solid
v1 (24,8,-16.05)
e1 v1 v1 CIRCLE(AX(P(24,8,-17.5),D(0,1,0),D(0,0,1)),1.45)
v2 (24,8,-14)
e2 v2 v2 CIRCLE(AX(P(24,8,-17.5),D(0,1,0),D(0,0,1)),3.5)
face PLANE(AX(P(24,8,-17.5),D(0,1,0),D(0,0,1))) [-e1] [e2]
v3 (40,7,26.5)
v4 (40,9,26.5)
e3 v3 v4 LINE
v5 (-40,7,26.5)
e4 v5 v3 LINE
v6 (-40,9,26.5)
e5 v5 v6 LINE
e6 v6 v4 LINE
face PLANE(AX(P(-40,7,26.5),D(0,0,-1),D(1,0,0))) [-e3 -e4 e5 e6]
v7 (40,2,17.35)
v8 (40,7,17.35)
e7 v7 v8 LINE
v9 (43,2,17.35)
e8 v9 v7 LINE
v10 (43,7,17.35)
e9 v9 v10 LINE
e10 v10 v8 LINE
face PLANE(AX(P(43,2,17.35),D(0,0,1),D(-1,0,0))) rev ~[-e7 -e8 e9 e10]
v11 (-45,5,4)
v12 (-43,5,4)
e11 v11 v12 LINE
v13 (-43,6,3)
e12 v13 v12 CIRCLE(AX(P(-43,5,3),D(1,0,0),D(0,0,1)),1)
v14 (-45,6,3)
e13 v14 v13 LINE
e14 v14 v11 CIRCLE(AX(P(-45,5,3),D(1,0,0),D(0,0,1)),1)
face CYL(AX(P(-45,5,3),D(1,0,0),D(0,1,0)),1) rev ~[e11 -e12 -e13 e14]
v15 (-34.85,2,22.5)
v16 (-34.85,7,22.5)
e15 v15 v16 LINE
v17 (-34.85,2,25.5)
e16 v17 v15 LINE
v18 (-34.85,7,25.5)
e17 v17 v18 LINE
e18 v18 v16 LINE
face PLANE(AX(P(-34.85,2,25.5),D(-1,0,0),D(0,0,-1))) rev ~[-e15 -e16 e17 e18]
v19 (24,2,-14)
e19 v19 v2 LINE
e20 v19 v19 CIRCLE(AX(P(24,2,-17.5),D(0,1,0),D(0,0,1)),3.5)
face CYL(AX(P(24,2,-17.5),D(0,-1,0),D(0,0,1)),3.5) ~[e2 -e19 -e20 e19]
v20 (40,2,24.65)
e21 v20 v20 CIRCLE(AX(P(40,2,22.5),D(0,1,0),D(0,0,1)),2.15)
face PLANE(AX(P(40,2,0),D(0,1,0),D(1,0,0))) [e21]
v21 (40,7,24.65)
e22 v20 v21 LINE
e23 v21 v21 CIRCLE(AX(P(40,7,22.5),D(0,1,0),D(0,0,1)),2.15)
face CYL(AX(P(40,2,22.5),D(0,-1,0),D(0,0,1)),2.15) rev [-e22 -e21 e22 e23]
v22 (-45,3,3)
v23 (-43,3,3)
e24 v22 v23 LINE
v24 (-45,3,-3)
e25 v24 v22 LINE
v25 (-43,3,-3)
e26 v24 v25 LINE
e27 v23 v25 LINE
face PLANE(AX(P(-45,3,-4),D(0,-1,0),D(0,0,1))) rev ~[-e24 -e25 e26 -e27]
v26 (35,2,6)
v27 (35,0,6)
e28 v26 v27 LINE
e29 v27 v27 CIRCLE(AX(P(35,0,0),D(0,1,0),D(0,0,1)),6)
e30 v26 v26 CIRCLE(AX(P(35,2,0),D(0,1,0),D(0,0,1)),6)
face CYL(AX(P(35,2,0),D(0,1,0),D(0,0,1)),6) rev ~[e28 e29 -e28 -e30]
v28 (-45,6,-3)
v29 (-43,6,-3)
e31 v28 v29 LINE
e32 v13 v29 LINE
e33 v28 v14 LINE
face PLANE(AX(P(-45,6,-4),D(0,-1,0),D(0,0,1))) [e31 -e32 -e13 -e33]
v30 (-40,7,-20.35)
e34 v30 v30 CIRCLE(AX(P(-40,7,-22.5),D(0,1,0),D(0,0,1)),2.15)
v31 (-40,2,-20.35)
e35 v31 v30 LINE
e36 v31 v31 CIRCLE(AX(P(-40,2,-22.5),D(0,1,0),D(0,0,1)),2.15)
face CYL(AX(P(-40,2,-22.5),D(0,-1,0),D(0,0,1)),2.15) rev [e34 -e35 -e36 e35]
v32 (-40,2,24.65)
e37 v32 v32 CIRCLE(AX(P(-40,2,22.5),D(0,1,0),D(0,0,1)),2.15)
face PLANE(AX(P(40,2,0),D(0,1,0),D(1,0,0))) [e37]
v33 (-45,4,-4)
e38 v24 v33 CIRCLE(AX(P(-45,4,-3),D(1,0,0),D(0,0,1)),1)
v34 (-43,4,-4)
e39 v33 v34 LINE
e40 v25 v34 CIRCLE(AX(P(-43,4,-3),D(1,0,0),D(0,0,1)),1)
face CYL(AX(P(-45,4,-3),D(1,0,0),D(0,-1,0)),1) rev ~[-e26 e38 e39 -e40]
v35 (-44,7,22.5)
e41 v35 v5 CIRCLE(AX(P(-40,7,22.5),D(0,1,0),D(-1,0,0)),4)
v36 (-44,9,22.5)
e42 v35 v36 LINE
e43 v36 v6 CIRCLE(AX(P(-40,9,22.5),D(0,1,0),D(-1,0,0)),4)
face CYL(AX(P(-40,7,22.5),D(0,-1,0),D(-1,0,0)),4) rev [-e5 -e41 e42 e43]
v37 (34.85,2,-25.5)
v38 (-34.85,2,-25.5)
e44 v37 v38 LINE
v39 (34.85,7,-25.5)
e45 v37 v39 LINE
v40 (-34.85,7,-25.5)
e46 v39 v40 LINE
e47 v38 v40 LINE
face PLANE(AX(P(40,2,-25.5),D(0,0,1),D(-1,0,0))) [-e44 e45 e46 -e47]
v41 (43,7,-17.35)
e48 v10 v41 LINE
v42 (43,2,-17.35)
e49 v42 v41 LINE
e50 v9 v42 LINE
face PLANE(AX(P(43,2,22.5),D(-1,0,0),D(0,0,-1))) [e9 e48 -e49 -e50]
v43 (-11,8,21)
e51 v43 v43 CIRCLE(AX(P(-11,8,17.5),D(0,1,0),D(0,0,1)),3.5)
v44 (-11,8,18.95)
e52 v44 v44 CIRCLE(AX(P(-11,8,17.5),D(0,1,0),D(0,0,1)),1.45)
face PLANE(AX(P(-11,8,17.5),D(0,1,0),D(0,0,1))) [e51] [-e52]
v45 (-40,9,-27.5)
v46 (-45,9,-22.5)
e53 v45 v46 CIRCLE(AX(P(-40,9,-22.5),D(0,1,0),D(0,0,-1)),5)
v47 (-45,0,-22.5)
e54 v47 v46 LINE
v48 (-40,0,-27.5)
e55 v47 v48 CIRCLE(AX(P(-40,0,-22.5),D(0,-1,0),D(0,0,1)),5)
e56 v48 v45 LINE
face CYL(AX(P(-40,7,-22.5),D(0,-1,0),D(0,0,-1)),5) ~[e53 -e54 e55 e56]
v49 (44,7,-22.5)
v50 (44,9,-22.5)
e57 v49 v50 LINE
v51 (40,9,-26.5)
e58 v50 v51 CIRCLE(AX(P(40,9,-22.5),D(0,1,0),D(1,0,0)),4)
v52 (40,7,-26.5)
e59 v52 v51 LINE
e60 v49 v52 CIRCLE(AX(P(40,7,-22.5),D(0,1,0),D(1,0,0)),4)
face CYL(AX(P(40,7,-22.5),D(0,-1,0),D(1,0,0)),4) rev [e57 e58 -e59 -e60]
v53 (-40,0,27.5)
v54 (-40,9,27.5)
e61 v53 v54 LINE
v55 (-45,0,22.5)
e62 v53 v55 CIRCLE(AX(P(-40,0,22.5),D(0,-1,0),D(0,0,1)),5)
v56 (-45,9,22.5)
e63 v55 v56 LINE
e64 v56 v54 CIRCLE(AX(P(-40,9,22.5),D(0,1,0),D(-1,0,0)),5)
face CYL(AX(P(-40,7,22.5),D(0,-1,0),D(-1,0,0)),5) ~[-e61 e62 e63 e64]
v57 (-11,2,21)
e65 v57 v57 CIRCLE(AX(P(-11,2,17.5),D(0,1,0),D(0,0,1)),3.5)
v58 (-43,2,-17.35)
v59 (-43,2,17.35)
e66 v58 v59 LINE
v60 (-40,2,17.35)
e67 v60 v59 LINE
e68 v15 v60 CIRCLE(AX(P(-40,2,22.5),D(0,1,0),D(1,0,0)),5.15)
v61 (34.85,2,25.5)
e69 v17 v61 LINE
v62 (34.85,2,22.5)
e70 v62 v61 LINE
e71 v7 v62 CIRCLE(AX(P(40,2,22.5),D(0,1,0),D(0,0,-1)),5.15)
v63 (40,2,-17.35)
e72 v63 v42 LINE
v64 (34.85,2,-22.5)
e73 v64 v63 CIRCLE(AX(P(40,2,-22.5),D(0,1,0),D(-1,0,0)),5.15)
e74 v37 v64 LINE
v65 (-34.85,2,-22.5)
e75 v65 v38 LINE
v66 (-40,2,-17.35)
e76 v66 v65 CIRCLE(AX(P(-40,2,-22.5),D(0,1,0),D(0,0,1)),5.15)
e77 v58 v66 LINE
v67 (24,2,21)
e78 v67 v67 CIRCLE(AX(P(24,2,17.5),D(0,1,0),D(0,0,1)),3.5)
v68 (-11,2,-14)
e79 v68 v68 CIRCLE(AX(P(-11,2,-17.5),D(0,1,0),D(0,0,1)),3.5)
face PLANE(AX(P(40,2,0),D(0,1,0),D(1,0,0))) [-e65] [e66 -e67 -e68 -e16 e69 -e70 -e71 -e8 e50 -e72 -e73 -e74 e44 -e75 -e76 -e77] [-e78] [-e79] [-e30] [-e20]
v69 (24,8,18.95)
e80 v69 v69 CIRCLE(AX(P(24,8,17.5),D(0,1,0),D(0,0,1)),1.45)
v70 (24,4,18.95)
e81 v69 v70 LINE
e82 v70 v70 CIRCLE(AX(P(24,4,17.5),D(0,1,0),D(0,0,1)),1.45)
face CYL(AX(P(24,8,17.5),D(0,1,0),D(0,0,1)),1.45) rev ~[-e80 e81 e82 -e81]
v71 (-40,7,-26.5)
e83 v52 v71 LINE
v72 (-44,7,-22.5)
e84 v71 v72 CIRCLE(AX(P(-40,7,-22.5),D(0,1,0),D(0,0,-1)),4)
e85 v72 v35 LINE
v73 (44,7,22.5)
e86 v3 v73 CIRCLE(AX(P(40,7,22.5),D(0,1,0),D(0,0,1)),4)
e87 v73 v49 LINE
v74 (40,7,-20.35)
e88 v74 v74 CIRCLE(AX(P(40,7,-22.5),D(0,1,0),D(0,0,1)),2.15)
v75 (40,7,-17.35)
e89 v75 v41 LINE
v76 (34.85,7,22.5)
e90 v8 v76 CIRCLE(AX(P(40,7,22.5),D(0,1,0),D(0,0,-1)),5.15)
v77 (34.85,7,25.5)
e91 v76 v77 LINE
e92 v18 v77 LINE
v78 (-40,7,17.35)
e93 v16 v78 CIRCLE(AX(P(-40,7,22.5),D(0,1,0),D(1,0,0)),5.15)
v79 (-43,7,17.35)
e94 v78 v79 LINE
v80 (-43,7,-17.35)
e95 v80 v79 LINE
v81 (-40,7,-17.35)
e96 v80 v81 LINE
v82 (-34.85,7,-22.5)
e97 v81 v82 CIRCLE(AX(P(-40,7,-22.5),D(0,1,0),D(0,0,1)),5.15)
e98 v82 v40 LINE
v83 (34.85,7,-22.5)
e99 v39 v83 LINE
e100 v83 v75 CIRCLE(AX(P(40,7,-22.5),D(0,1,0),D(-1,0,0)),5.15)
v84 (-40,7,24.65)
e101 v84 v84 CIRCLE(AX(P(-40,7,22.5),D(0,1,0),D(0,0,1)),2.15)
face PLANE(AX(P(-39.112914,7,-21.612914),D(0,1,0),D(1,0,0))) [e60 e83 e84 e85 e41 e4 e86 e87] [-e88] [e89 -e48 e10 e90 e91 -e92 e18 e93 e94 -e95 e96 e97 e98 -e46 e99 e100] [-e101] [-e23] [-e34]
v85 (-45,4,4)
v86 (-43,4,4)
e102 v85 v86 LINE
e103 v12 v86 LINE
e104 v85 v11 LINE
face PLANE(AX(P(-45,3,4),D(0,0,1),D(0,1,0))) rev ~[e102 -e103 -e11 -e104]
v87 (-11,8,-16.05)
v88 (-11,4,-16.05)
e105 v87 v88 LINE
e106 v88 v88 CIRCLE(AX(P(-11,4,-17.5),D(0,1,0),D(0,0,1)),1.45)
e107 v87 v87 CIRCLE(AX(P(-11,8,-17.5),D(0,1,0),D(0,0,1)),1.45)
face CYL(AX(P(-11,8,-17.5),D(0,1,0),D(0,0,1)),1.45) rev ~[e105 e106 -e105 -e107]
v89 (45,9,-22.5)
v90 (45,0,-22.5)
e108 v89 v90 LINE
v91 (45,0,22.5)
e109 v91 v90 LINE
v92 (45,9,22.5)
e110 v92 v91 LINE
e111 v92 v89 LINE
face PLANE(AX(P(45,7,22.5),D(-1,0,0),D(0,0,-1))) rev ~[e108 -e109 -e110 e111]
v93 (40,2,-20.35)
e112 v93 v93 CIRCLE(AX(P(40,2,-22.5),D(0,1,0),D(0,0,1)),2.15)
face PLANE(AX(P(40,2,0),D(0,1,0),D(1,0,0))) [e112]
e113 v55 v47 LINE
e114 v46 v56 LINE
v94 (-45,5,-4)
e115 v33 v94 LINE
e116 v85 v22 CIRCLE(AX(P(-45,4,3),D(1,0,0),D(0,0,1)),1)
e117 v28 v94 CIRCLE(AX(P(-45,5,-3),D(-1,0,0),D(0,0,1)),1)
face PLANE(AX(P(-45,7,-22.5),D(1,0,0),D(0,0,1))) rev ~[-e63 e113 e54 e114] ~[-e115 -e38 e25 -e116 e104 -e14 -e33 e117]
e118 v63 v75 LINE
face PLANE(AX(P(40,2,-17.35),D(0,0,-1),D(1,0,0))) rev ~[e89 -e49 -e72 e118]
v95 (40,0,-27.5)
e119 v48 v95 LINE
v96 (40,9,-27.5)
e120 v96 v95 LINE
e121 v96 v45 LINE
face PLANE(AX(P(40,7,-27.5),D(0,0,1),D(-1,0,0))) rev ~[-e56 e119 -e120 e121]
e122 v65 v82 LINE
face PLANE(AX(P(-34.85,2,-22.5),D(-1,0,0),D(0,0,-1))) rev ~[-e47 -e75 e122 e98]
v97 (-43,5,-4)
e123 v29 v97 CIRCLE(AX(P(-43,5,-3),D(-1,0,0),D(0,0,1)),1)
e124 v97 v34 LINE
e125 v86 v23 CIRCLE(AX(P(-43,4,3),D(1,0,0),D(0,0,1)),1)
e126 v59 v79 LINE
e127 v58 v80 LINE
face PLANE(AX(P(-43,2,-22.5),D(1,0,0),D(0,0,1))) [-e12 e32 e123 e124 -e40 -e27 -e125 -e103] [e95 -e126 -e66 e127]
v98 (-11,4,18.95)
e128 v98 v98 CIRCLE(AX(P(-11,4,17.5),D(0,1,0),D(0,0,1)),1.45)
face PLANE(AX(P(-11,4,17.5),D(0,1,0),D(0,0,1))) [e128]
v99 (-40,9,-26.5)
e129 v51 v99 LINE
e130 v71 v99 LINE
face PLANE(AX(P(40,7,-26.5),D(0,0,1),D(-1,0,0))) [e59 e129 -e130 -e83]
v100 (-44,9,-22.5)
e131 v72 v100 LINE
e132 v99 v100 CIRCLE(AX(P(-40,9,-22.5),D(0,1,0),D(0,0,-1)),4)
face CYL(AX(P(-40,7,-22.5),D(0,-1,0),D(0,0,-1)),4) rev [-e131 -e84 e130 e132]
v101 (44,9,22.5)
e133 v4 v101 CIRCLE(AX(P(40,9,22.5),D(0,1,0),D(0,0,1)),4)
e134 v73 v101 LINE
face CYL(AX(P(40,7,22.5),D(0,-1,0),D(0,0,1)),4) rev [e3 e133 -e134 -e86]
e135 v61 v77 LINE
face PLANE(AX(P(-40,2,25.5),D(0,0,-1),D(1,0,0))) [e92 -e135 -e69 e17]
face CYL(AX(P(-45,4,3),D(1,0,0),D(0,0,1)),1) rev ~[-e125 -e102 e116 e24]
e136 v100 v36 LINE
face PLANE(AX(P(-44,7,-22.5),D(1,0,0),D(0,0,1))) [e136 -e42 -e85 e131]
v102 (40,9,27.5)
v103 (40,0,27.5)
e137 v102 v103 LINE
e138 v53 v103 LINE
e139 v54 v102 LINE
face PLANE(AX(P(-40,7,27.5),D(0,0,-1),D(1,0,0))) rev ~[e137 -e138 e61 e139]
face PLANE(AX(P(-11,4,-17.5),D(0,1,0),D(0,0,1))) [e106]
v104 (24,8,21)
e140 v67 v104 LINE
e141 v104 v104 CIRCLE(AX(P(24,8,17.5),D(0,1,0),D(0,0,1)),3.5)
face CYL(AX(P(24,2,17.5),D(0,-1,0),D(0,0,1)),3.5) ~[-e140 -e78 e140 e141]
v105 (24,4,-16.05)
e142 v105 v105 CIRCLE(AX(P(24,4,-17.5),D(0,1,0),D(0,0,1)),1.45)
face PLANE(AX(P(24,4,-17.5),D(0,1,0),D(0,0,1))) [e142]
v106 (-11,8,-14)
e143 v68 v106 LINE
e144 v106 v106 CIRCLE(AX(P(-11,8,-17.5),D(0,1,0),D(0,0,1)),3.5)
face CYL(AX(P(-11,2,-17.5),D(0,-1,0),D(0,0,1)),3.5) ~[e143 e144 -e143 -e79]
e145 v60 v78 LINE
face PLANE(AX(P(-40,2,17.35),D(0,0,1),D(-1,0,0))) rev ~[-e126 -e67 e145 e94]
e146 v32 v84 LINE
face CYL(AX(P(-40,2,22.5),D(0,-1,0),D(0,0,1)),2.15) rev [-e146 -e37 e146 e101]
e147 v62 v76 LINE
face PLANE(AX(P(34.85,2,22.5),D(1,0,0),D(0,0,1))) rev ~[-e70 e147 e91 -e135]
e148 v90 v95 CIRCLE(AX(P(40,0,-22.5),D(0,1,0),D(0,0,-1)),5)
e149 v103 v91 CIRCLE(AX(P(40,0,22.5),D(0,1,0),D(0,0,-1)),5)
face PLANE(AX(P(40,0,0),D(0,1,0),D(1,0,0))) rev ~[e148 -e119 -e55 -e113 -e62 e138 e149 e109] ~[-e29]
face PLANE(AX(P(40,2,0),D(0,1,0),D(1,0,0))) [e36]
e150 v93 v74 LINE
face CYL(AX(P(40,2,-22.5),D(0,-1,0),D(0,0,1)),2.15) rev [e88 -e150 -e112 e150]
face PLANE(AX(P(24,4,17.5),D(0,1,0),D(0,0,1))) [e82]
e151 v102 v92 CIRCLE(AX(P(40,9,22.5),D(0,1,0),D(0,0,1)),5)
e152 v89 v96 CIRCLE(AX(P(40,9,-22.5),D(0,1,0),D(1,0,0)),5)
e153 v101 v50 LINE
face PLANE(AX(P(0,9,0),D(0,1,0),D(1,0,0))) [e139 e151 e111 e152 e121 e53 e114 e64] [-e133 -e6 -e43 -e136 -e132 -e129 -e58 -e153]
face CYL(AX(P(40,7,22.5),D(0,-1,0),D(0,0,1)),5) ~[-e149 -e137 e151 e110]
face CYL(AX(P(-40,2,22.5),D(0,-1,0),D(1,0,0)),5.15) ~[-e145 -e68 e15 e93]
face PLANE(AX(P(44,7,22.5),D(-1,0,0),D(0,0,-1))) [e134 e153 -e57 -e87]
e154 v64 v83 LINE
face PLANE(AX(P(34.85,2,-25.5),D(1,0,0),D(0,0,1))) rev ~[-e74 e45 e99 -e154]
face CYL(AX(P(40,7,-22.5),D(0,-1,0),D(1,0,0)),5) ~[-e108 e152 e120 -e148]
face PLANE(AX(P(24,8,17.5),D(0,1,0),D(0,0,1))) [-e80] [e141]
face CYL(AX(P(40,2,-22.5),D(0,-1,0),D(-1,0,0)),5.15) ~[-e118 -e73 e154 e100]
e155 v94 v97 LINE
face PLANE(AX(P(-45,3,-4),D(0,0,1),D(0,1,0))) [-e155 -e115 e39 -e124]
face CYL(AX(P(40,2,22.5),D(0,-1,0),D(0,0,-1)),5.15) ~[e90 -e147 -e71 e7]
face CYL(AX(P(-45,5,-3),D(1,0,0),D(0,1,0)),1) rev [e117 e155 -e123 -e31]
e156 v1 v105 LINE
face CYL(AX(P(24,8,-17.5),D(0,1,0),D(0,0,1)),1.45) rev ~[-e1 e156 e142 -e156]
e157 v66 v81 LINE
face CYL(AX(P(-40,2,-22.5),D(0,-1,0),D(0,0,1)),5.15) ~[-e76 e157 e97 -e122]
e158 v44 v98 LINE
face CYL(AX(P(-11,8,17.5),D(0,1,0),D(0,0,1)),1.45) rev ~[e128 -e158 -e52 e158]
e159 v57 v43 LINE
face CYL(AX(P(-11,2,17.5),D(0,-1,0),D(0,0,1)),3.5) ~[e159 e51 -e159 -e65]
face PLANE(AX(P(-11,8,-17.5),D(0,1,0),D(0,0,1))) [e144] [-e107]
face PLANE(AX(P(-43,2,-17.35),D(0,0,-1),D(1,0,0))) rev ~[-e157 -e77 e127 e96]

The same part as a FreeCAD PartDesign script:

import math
import FreeCAD as App
import Part
import Sketcher


def edges_at(feature, points):
    """Names of the edges that pass closest to the given points."""
    edges = feature.Shape.Edges
    near = lambda p: min(range(len(edges)), key=lambda i: edges[i].distToShape(Part.Vertex(*p))[0])
    return sorted({f"Edge{near(p) + 1}" for p in points})

doc = App.newDocument("Part")
body = doc.addObject("PartDesign::Body", "Body")

sketch1 = body.newObject("Sketcher::SketchObject", "Sketch")
sketch1.AttachmentSupport = (doc.getObject("XZ_Plane"), [""])
sketch1.MapMode = "FlatFace"
sketch1.addGeometry(Part.LineSegment(App.Vector(35, 28, 0), App.Vector(35, -28, 0)), False)
sketch1.addGeometry(Part.LineSegment(App.Vector(35, -28, 0), App.Vector(-45, -28, 0)), False)
sketch1.addGeometry(Part.LineSegment(App.Vector(-45, -28, 0), App.Vector(-45, 28, 0)), False)
sketch1.addGeometry(Part.LineSegment(App.Vector(-45, 28, 0), App.Vector(35, 28, 0)), False)
sketch1.addConstraint(Sketcher.Constraint("Coincident", 0, 2, 1, 1))
sketch1.addConstraint(Sketcher.Constraint("Coincident", 1, 2, 2, 1))
sketch1.addConstraint(Sketcher.Constraint("Coincident", 2, 2, 3, 1))
sketch1.addConstraint(Sketcher.Constraint("Coincident", 3, 2, 0, 1))
sketch1.addConstraint(Sketcher.Constraint("Vertical", 0))
sketch1.addConstraint(Sketcher.Constraint("Horizontal", 1))
sketch1.addConstraint(Sketcher.Constraint("Vertical", 2))
sketch1.addConstraint(Sketcher.Constraint("Horizontal", 3))
sketch1.addConstraint(Sketcher.Constraint("DistanceX", 1, 2, 1, 1, 80.0))
sketch1.addConstraint(Sketcher.Constraint("DistanceY", 0, 2, 0, 1, 55.0))
sketch1.addConstraint(Sketcher.Constraint("DistanceX", -1, 1, 0, 2, 35.0))
sketch1.addConstraint(Sketcher.Constraint("DistanceY", 0, 2, -1, 1, 27.5))
pad1 = body.newObject("PartDesign::Pad", "Pad")
pad1.Profile = sketch1
pad1.Length = 2
pad1.Reversed = True

sketch2 = body.newObject("Sketcher::SketchObject", "Sketch001")
sketch2.AttachmentSupport = (doc.getObject("XZ_Plane"), [""])
sketch2.MapMode = "FlatFace"
sketch2.AttachmentOffset = App.Placement(App.Vector(0, 0, -2), App.Rotation())
sketch2.addGeometry(Part.Circle(App.Vector(-11, -17.5, 0), App.Vector(0, 0, 1), 3.5), False)
sketch2.addGeometry(Part.Circle(App.Vector(24, -17.5, 0), App.Vector(0, 0, 1), 3.5), False)
sketch2.addGeometry(Part.Circle(App.Vector(24, 17.5, 0), App.Vector(0, 0, 1), 3.5), False)
sketch2.addGeometry(Part.Circle(App.Vector(-11, 17.5, 0), App.Vector(0, 0, 1), 3.5), False)
sketch2.addConstraint(Sketcher.Constraint("Equal", 0, 1))
sketch2.addConstraint(Sketcher.Constraint("Equal", 1, 2))
sketch2.addConstraint(Sketcher.Constraint("Equal", 2, 3))
sketch2.addConstraint(Sketcher.Constraint("Symmetric", 1, 3, 2, 3, -1))
sketch2.addConstraint(Sketcher.Constraint("Symmetric", 0, 3, 3, 3, -1))
sketch2.addConstraint(Sketcher.Constraint("Horizontal", 0, 3, 1, 3))
sketch2.addConstraint(Sketcher.Constraint("Diameter", 0, 7.0))
sketch2.addConstraint(Sketcher.Constraint("DistanceX", 0, 3, -1, 1, 11.0))
sketch2.addConstraint(Sketcher.Constraint("DistanceX", -1, 1, 1, 3, 24.0))
sketch2.addConstraint(Sketcher.Constraint("DistanceY", 1, 3, 2, 3, 35.0))
pad2 = body.newObject("PartDesign::Pad", "Pad001")
pad2.Profile = sketch2
pad2.Length = 6
pad2.Reversed = True

sketch3 = body.newObject("Sketcher::SketchObject", "Sketch002")
sketch3.AttachmentSupport = (doc.getObject("XZ_Plane"), [""])
sketch3.MapMode = "FlatFace"
sketch3.AttachmentOffset = App.Placement(App.Vector(0, 0, -8), App.Rotation())
sketch3.addGeometry(Part.Circle(App.Vector(-11, -17.5, 0), App.Vector(0, 0, 1), 1.4), False)
sketch3.addGeometry(Part.Circle(App.Vector(24, -17.5, 0), App.Vector(0, 0, 1), 1.4), False)
sketch3.addGeometry(Part.Circle(App.Vector(24, 17.5, 0), App.Vector(0, 0, 1), 1.4), False)
sketch3.addGeometry(Part.Circle(App.Vector(-11, 17.5, 0), App.Vector(0, 0, 1), 1.4), False)
sketch3.addConstraint(Sketcher.Constraint("Equal", 0, 1))
sketch3.addConstraint(Sketcher.Constraint("Equal", 1, 2))
sketch3.addConstraint(Sketcher.Constraint("Equal", 2, 3))
sketch3.addConstraint(Sketcher.Constraint("Symmetric", 1, 3, 2, 3, -1))
sketch3.addConstraint(Sketcher.Constraint("Symmetric", 0, 3, 3, 3, -1))
sketch3.addConstraint(Sketcher.Constraint("Horizontal", 0, 3, 1, 3))
sketch3.addConstraint(Sketcher.Constraint("Diameter", 0, 2.9))
sketch3.addConstraint(Sketcher.Constraint("DistanceX", 0, 3, -1, 1, 11.0))
sketch3.addConstraint(Sketcher.Constraint("DistanceX", -1, 1, 1, 3, 24.0))
sketch3.addConstraint(Sketcher.Constraint("DistanceY", 1, 3, 2, 3, 35.0))
pocket1 = body.newObject("PartDesign::Pocket", "Pocket")
pocket1.Profile = sketch3
pocket1.Length = 4
pocket1.Reversed = True

sketch4 = body.newObject("Sketcher::SketchObject", "Sketch003")
sketch4.AttachmentSupport = (doc.getObject("XZ_Plane"), [""])
sketch4.MapMode = "FlatFace"
sketch4.AttachmentOffset = App.Placement(App.Vector(0, 0, -2), App.Rotation())
sketch4.addGeometry(Part.LineSegment(App.Vector(35, -28, 0), App.Vector(35, 28, 0)), False)
sketch4.addGeometry(Part.LineSegment(App.Vector(35, 28, 0), App.Vector(45, 28, 0)), False)
sketch4.addGeometry(Part.LineSegment(App.Vector(45, 28, 0), App.Vector(45, -28, 0)), False)
sketch4.addGeometry(Part.LineSegment(App.Vector(45, -28, 0), App.Vector(35, -28, 0)), False)
sketch4.addConstraint(Sketcher.Constraint("Coincident", 0, 2, 1, 1))
sketch4.addConstraint(Sketcher.Constraint("Coincident", 1, 2, 2, 1))
sketch4.addConstraint(Sketcher.Constraint("Coincident", 2, 2, 3, 1))
sketch4.addConstraint(Sketcher.Constraint("Coincident", 3, 2, 0, 1))
sketch4.addConstraint(Sketcher.Constraint("Vertical", 0))
sketch4.addConstraint(Sketcher.Constraint("Horizontal", 1))
sketch4.addConstraint(Sketcher.Constraint("Vertical", 2))
sketch4.addConstraint(Sketcher.Constraint("Horizontal", 3))
sketch4.addConstraint(Sketcher.Constraint("DistanceX", 1, 1, 1, 2, 10.0))
sketch4.addConstraint(Sketcher.Constraint("DistanceY", 0, 1, 0, 2, 55.0))
sketch4.addConstraint(Sketcher.Constraint("DistanceX", -1, 1, 0, 2, 35.0))
sketch4.addConstraint(Sketcher.Constraint("DistanceY", -1, 1, 0, 2, 27.5))
pad3 = body.newObject("PartDesign::Pad", "Pad002")
pad3.Profile = sketch4
pad3.Length = 2

sketch5 = body.newObject("Sketcher::SketchObject", "Sketch004")
sketch5.AttachmentSupport = (doc.getObject("XZ_Plane"), [""])
sketch5.MapMode = "FlatFace"
sketch5.AttachmentOffset = App.Placement(App.Vector(0, 0, -2), App.Rotation())
sketch5.addGeometry(Part.Circle(App.Vector(35, 0, 0), App.Vector(0, 0, 1), 6), False)
sketch5.addConstraint(Sketcher.Constraint("PointOnObject", 0, 3, -1))
sketch5.addConstraint(Sketcher.Constraint("Diameter", 0, 12.0))
sketch5.addConstraint(Sketcher.Constraint("DistanceX", -1, 1, 0, 3, 35.0))
pocket2 = body.newObject("PartDesign::Pocket", "Pocket001")
pocket2.Profile = sketch5
pocket2.Length = 2
pocket2.Reversed = True
doc.recompute()

fillet = body.newObject("PartDesign::Fillet", "Fillet")
fillet.Base = (pocket2, edges_at(pocket2, [
    (45, 1, -27.5),
    (45, 1, 27.5),
    (-45, 1, 27.5),
    (-45, 1, -27.5),
]))
fillet.Radius = 5

sketch6 = body.newObject("Sketcher::SketchObject", "Sketch005")
sketch6.AttachmentSupport = (doc.getObject("XZ_Plane"), [""])
sketch6.MapMode = "FlatFace"
sketch6.AttachmentOffset = App.Placement(App.Vector(0, 0, -2), App.Rotation())
sketch6.addGeometry(Part.LineSegment(App.Vector(40, -27.5, 0), App.Vector(-40, -27.5, 0)), False)
sketch6.addGeometry(Part.ArcOfCircle(Part.Circle(App.Vector(-40, -22.5, 0), App.Vector(0, 0, 1), 5), math.radians(180), math.radians(270)), False)
sketch6.addGeometry(Part.LineSegment(App.Vector(-45, -22.5, 0), App.Vector(-45, 22.5, 0)), False)
sketch6.addGeometry(Part.ArcOfCircle(Part.Circle(App.Vector(-40, 22.5, 0), App.Vector(0, 0, 1), 5), math.radians(90), math.radians(180)), False)
sketch6.addGeometry(Part.LineSegment(App.Vector(-40, 27.5, 0), App.Vector(40, 27.5, 0)), False)
sketch6.addGeometry(Part.ArcOfCircle(Part.Circle(App.Vector(40, 22.5, 0), App.Vector(0, 0, 1), 5), math.radians(0), math.radians(90)), False)
sketch6.addGeometry(Part.LineSegment(App.Vector(45, 22.5, 0), App.Vector(45, -22.5, 0)), False)
sketch6.addGeometry(Part.ArcOfCircle(Part.Circle(App.Vector(40, -22.5, 0), App.Vector(0, 0, 1), 5), math.radians(-90), math.radians(0)), False)
sketch6.addGeometry(Part.LineSegment(App.Vector(43, -22.5, 0), App.Vector(43, 22.5, 0)), False)
sketch6.addGeometry(Part.ArcOfCircle(Part.Circle(App.Vector(40, 22.5, 0), App.Vector(0, 0, 1), 3), math.radians(0), math.radians(90)), False)
sketch6.addGeometry(Part.LineSegment(App.Vector(40, 25.5, 0), App.Vector(-40, 25.5, 0)), False)
sketch6.addGeometry(Part.ArcOfCircle(Part.Circle(App.Vector(-40, 22.5, 0), App.Vector(0, 0, 1), 3), math.radians(90), math.radians(180)), False)
sketch6.addGeometry(Part.LineSegment(App.Vector(-43, 22.5, 0), App.Vector(-43, -22.5, 0)), False)
sketch6.addGeometry(Part.ArcOfCircle(Part.Circle(App.Vector(-40, -22.5, 0), App.Vector(0, 0, 1), 3), math.radians(180), math.radians(270)), False)
sketch6.addGeometry(Part.LineSegment(App.Vector(-40, -25.5, 0), App.Vector(40, -25.5, 0)), False)
sketch6.addGeometry(Part.ArcOfCircle(Part.Circle(App.Vector(40, -22.5, 0), App.Vector(0, 0, 1), 3), math.radians(-90), math.radians(0)), False)
sketch6.addConstraint(Sketcher.Constraint("Tangent", 0, 2, 1, 2))
sketch6.addConstraint(Sketcher.Constraint("Tangent", 1, 1, 2, 1))
sketch6.addConstraint(Sketcher.Constraint("Tangent", 2, 2, 3, 2))
sketch6.addConstraint(Sketcher.Constraint("Tangent", 3, 1, 4, 1))
sketch6.addConstraint(Sketcher.Constraint("Tangent", 4, 2, 5, 2))
sketch6.addConstraint(Sketcher.Constraint("Tangent", 5, 1, 6, 1))
sketch6.addConstraint(Sketcher.Constraint("Tangent", 6, 2, 7, 2))
sketch6.addConstraint(Sketcher.Constraint("Tangent", 7, 1, 0, 1))
sketch6.addConstraint(Sketcher.Constraint("Tangent", 8, 2, 9, 1))
sketch6.addConstraint(Sketcher.Constraint("Tangent", 9, 2, 10, 1))
sketch6.addConstraint(Sketcher.Constraint("Tangent", 10, 2, 11, 1))
sketch6.addConstraint(Sketcher.Constraint("Tangent", 11, 2, 12, 1))
sketch6.addConstraint(Sketcher.Constraint("Tangent", 12, 2, 13, 1))
sketch6.addConstraint(Sketcher.Constraint("Tangent", 13, 2, 14, 1))
sketch6.addConstraint(Sketcher.Constraint("Tangent", 14, 2, 15, 1))
sketch6.addConstraint(Sketcher.Constraint("Tangent", 15, 2, 8, 1))
sketch6.addConstraint(Sketcher.Constraint("Horizontal", 0))
sketch6.addConstraint(Sketcher.Constraint("Vertical", 2))
sketch6.addConstraint(Sketcher.Constraint("Horizontal", 4))
sketch6.addConstraint(Sketcher.Constraint("Vertical", 6))
sketch6.addConstraint(Sketcher.Constraint("Vertical", 8))
sketch6.addConstraint(Sketcher.Constraint("Horizontal", 10))
sketch6.addConstraint(Sketcher.Constraint("Vertical", 12))
sketch6.addConstraint(Sketcher.Constraint("Horizontal", 14))
sketch6.addConstraint(Sketcher.Constraint("Coincident", 9, 3, 5, 3))
sketch6.addConstraint(Sketcher.Constraint("Coincident", 11, 3, 3, 3))
sketch6.addConstraint(Sketcher.Constraint("Coincident", 13, 3, 1, 3))
sketch6.addConstraint(Sketcher.Constraint("Equal", 1, 3))
sketch6.addConstraint(Sketcher.Constraint("Equal", 3, 5))
sketch6.addConstraint(Sketcher.Constraint("Equal", 5, 7))
sketch6.addConstraint(Sketcher.Constraint("Equal", 13, 15))
sketch6.addConstraint(Sketcher.Constraint("Symmetric", 1, 3, 5, 3, -1, 1))
sketch6.addConstraint(Sketcher.Constraint("Radius", 1, 5.0))
sketch6.addConstraint(Sketcher.Constraint("Radius", 9, 3.0))
sketch6.addConstraint(Sketcher.Constraint("DistanceX", 0, 2, 0, 1, 80.0))
sketch6.addConstraint(Sketcher.Constraint("DistanceY", 2, 1, 2, 2, 45.0))
pad4 = body.newObject("PartDesign::Pad", "Pad003")
pad4.Profile = sketch6
pad4.Length = 5
pad4.Reversed = True

sketch7 = body.newObject("Sketcher::SketchObject", "Sketch006")
sketch7.AttachmentSupport = (doc.getObject("XZ_Plane"), [""])
sketch7.MapMode = "FlatFace"
sketch7.AttachmentOffset = App.Placement(App.Vector(0, 0, -7), App.Rotation())
sketch7.addGeometry(Part.LineSegment(App.Vector(40, -27.5, 0), App.Vector(-40, -27.5, 0)), False)
sketch7.addGeometry(Part.ArcOfCircle(Part.Circle(App.Vector(-40, -22.5, 0), App.Vector(0, 0, 1), 5), math.radians(180), math.radians(270)), False)
sketch7.addGeometry(Part.LineSegment(App.Vector(-45, -22.5, 0), App.Vector(-45, 22.5, 0)), False)
sketch7.addGeometry(Part.ArcOfCircle(Part.Circle(App.Vector(-40, 22.5, 0), App.Vector(0, 0, 1), 5), math.radians(90), math.radians(180)), False)
sketch7.addGeometry(Part.LineSegment(App.Vector(-40, 27.5, 0), App.Vector(40, 27.5, 0)), False)
sketch7.addGeometry(Part.ArcOfCircle(Part.Circle(App.Vector(40, 22.5, 0), App.Vector(0, 0, 1), 5), math.radians(0), math.radians(90)), False)
sketch7.addGeometry(Part.LineSegment(App.Vector(45, 22.5, 0), App.Vector(45, -22.5, 0)), False)
sketch7.addGeometry(Part.ArcOfCircle(Part.Circle(App.Vector(40, -22.5, 0), App.Vector(0, 0, 1), 5), math.radians(-90), math.radians(0)), False)
sketch7.addGeometry(Part.LineSegment(App.Vector(-40, -26.5, 0), App.Vector(40, -26.5, 0)), False)
sketch7.addGeometry(Part.ArcOfCircle(Part.Circle(App.Vector(40, -22.5, 0), App.Vector(0, 0, 1), 4), math.radians(-90), math.radians(0)), False)
sketch7.addGeometry(Part.LineSegment(App.Vector(44, -22.5, 0), App.Vector(44, 22.5, 0)), False)
sketch7.addGeometry(Part.ArcOfCircle(Part.Circle(App.Vector(40, 22.5, 0), App.Vector(0, 0, 1), 4), math.radians(0), math.radians(90)), False)
sketch7.addGeometry(Part.LineSegment(App.Vector(40, 26.5, 0), App.Vector(-40, 26.5, 0)), False)
sketch7.addGeometry(Part.ArcOfCircle(Part.Circle(App.Vector(-40, 22.5, 0), App.Vector(0, 0, 1), 4), math.radians(90), math.radians(180)), False)
sketch7.addGeometry(Part.LineSegment(App.Vector(-44, 22.5, 0), App.Vector(-44, -22.5, 0)), False)
sketch7.addGeometry(Part.ArcOfCircle(Part.Circle(App.Vector(-40, -22.5, 0), App.Vector(0, 0, 1), 4), math.radians(180), math.radians(270)), False)
sketch7.addConstraint(Sketcher.Constraint("Tangent", 0, 2, 1, 2))
sketch7.addConstraint(Sketcher.Constraint("Tangent", 1, 1, 2, 1))
sketch7.addConstraint(Sketcher.Constraint("Tangent", 2, 2, 3, 2))
sketch7.addConstraint(Sketcher.Constraint("Tangent", 3, 1, 4, 1))
sketch7.addConstraint(Sketcher.Constraint("Tangent", 4, 2, 5, 2))
sketch7.addConstraint(Sketcher.Constraint("Tangent", 5, 1, 6, 1))
sketch7.addConstraint(Sketcher.Constraint("Tangent", 6, 2, 7, 2))
sketch7.addConstraint(Sketcher.Constraint("Tangent", 7, 1, 0, 1))
sketch7.addConstraint(Sketcher.Constraint("Tangent", 8, 2, 9, 1))
sketch7.addConstraint(Sketcher.Constraint("Tangent", 9, 2, 10, 1))
sketch7.addConstraint(Sketcher.Constraint("Tangent", 10, 2, 11, 1))
sketch7.addConstraint(Sketcher.Constraint("Tangent", 11, 2, 12, 1))
sketch7.addConstraint(Sketcher.Constraint("Tangent", 12, 2, 13, 1))
sketch7.addConstraint(Sketcher.Constraint("Tangent", 13, 2, 14, 1))
sketch7.addConstraint(Sketcher.Constraint("Tangent", 14, 2, 15, 1))
sketch7.addConstraint(Sketcher.Constraint("Tangent", 15, 2, 8, 1))
sketch7.addConstraint(Sketcher.Constraint("Horizontal", 0))
sketch7.addConstraint(Sketcher.Constraint("Vertical", 2))
sketch7.addConstraint(Sketcher.Constraint("Horizontal", 4))
sketch7.addConstraint(Sketcher.Constraint("Vertical", 6))
sketch7.addConstraint(Sketcher.Constraint("Horizontal", 8))
sketch7.addConstraint(Sketcher.Constraint("Vertical", 10))
sketch7.addConstraint(Sketcher.Constraint("Horizontal", 12))
sketch7.addConstraint(Sketcher.Constraint("Vertical", 14))
sketch7.addConstraint(Sketcher.Constraint("Coincident", 9, 3, 7, 3))
sketch7.addConstraint(Sketcher.Constraint("Coincident", 11, 3, 5, 3))
sketch7.addConstraint(Sketcher.Constraint("Coincident", 13, 3, 3, 3))
sketch7.addConstraint(Sketcher.Constraint("Equal", 1, 3))
sketch7.addConstraint(Sketcher.Constraint("Equal", 3, 5))
sketch7.addConstraint(Sketcher.Constraint("Equal", 5, 7))
sketch7.addConstraint(Sketcher.Constraint("Equal", 13, 15))
sketch7.addConstraint(Sketcher.Constraint("Symmetric", 1, 3, 5, 3, -1, 1))
sketch7.addConstraint(Sketcher.Constraint("Radius", 1, 5.0))
sketch7.addConstraint(Sketcher.Constraint("Radius", 9, 4.0))
sketch7.addConstraint(Sketcher.Constraint("DistanceX", 0, 2, 0, 1, 80.0))
sketch7.addConstraint(Sketcher.Constraint("DistanceY", 2, 1, 2, 2, 45.0))
pad5 = body.newObject("PartDesign::Pad", "Pad004")
pad5.Profile = sketch7
pad5.Length = 2
pad5.Reversed = True

sketch8 = body.newObject("Sketcher::SketchObject", "Sketch007")
sketch8.AttachmentSupport = (doc.getObject("XZ_Plane"), [""])
sketch8.MapMode = "FlatFace"
sketch8.AttachmentOffset = App.Placement(App.Vector(0, 0, -2), App.Rotation())
sketch8.addGeometry(Part.ArcOfCircle(Part.Circle(App.Vector(-40, -22.5, 0), App.Vector(0, 0, 1), 5.2), math.radians(0), math.radians(90)), False)
sketch8.addGeometry(Part.LineSegment(App.Vector(-34.9, -22.5, 0), App.Vector(-34.9, -25.5, 0)), False)
sketch8.addGeometry(Part.LineSegment(App.Vector(-34.9, -25.5, 0), App.Vector(-40, -25.5, 0)), False)
sketch8.addGeometry(Part.ArcOfCircle(Part.Circle(App.Vector(-40, -22.5, 0), App.Vector(0, 0, 1), 3), math.radians(180), math.radians(270)), False)
sketch8.addGeometry(Part.LineSegment(App.Vector(-43, -22.5, 0), App.Vector(-43, -17.4, 0)), False)
sketch8.addGeometry(Part.LineSegment(App.Vector(-43, -17.4, 0), App.Vector(-40, -17.4, 0)), False)
sketch8.addGeometry(Part.Circle(App.Vector(-40, -22.5, 0), App.Vector(0, 0, 1), 2.1), False)
sketch8.addGeometry(Part.LineSegment(App.Vector(40, -25.5, 0), App.Vector(34.9, -25.5, 0)), False)
sketch8.addGeometry(Part.LineSegment(App.Vector(34.9, -25.5, 0), App.Vector(34.9, -22.5, 0)), False)
sketch8.addGeometry(Part.ArcOfCircle(Part.Circle(App.Vector(40, -22.5, 0), App.Vector(0, 0, 1), 5.2), math.radians(90), math.radians(180)), False)
sketch8.addGeometry(Part.LineSegment(App.Vector(40, -17.4, 0), App.Vector(43, -17.4, 0)), False)
sketch8.addGeometry(Part.LineSegment(App.Vector(43, -17.4, 0), App.Vector(43, -22.5, 0)), False)
sketch8.addGeometry(Part.ArcOfCircle(Part.Circle(App.Vector(40, -22.5, 0), App.Vector(0, 0, 1), 3), math.radians(-90), math.radians(0)), False)
sketch8.addGeometry(Part.Circle(App.Vector(40, -22.5, 0), App.Vector(0, 0, 1), 2.1), False)
sketch8.addGeometry(Part.LineSegment(App.Vector(43, 22.5, 0), App.Vector(43, 17.4, 0)), False)
sketch8.addGeometry(Part.LineSegment(App.Vector(43, 17.4, 0), App.Vector(40, 17.4, 0)), False)
sketch8.addGeometry(Part.ArcOfCircle(Part.Circle(App.Vector(40, 22.5, 0), App.Vector(0, 0, 1), 5.2), math.radians(180), math.radians(270)), False)
sketch8.addGeometry(Part.LineSegment(App.Vector(34.9, 22.5, 0), App.Vector(34.9, 25.5, 0)), False)
sketch8.addGeometry(Part.LineSegment(App.Vector(34.9, 25.5, 0), App.Vector(40, 25.5, 0)), False)
sketch8.addGeometry(Part.ArcOfCircle(Part.Circle(App.Vector(40, 22.5, 0), App.Vector(0, 0, 1), 3), math.radians(0), math.radians(90)), False)
sketch8.addGeometry(Part.Circle(App.Vector(40, 22.5, 0), App.Vector(0, 0, 1), 2.1), False)
sketch8.addGeometry(Part.LineSegment(App.Vector(-40, 17.4, 0), App.Vector(-43, 17.4, 0)), False)
sketch8.addGeometry(Part.LineSegment(App.Vector(-43, 17.4, 0), App.Vector(-43, 22.5, 0)), False)
sketch8.addGeometry(Part.ArcOfCircle(Part.Circle(App.Vector(-40, 22.5, 0), App.Vector(0, 0, 1), 3), math.radians(90), math.radians(180)), False)
sketch8.addGeometry(Part.LineSegment(App.Vector(-40, 25.5, 0), App.Vector(-34.9, 25.5, 0)), False)
sketch8.addGeometry(Part.LineSegment(App.Vector(-34.9, 25.5, 0), App.Vector(-34.9, 22.5, 0)), False)
sketch8.addGeometry(Part.ArcOfCircle(Part.Circle(App.Vector(-40, 22.5, 0), App.Vector(0, 0, 1), 5.2), math.radians(-90), math.radians(0)), False)
sketch8.addGeometry(Part.Circle(App.Vector(-40, 22.5, 0), App.Vector(0, 0, 1), 2.1), False)
sketch8.addConstraint(Sketcher.Constraint("Tangent", 0, 1, 1, 1))
sketch8.addConstraint(Sketcher.Constraint("Coincident", 1, 2, 2, 1))
sketch8.addConstraint(Sketcher.Constraint("Tangent", 2, 2, 3, 2))
sketch8.addConstraint(Sketcher.Constraint("Tangent", 3, 1, 4, 1))
sketch8.addConstraint(Sketcher.Constraint("Coincident", 4, 2, 5, 1))
sketch8.addConstraint(Sketcher.Constraint("Tangent", 5, 2, 0, 2))
sketch8.addConstraint(Sketcher.Constraint("Coincident", 7, 2, 8, 1))
sketch8.addConstraint(Sketcher.Constraint("Tangent", 8, 2, 9, 2))
sketch8.addConstraint(Sketcher.Constraint("Tangent", 9, 1, 10, 1))
sketch8.addConstraint(Sketcher.Constraint("Coincident", 10, 2, 11, 1))
sketch8.addConstraint(Sketcher.Constraint("Tangent", 11, 2, 12, 2))
sketch8.addConstraint(Sketcher.Constraint("Tangent", 12, 1, 7, 1))
sketch8.addConstraint(Sketcher.Constraint("Coincident", 14, 2, 15, 1))
sketch8.addConstraint(Sketcher.Constraint("Tangent", 15, 2, 16, 2))
sketch8.addConstraint(Sketcher.Constraint("Tangent", 16, 1, 17, 1))
sketch8.addConstraint(Sketcher.Constraint("Coincident", 17, 2, 18, 1))
sketch8.addConstraint(Sketcher.Constraint("Tangent", 18, 2, 19, 2))
sketch8.addConstraint(Sketcher.Constraint("Tangent", 19, 1, 14, 1))
sketch8.addConstraint(Sketcher.Constraint("Coincident", 21, 2, 22, 1))
sketch8.addConstraint(Sketcher.Constraint("Tangent", 22, 2, 23, 2))
sketch8.addConstraint(Sketcher.Constraint("Tangent", 23, 1, 24, 1))
sketch8.addConstraint(Sketcher.Constraint("Coincident", 24, 2, 25, 1))
sketch8.addConstraint(Sketcher.Constraint("Tangent", 25, 2, 26, 2))
sketch8.addConstraint(Sketcher.Constraint("Tangent", 26, 1, 21, 1))
sketch8.addConstraint(Sketcher.Constraint("Vertical", 1))
sketch8.addConstraint(Sketcher.Constraint("Horizontal", 2))
sketch8.addConstraint(Sketcher.Constraint("Vertical", 4))
sketch8.addConstraint(Sketcher.Constraint("Horizontal", 5))
sketch8.addConstraint(Sketcher.Constraint("Horizontal", 7))
sketch8.addConstraint(Sketcher.Constraint("Vertical", 8))
sketch8.addConstraint(Sketcher.Constraint("Horizontal", 10))
sketch8.addConstraint(Sketcher.Constraint("Vertical", 11))
sketch8.addConstraint(Sketcher.Constraint("Vertical", 14))
sketch8.addConstraint(Sketcher.Constraint("Horizontal", 15))
sketch8.addConstraint(Sketcher.Constraint("Vertical", 17))
sketch8.addConstraint(Sketcher.Constraint("Horizontal", 18))
sketch8.addConstraint(Sketcher.Constraint("Horizontal", 21))
sketch8.addConstraint(Sketcher.Constraint("Vertical", 22))
sketch8.addConstraint(Sketcher.Constraint("Horizontal", 24))
sketch8.addConstraint(Sketcher.Constraint("Vertical", 25))
sketch8.addConstraint(Sketcher.Constraint("Coincident", 3, 3, 0, 3))
sketch8.addConstraint(Sketcher.Constraint("Coincident", 6, 3, 0, 3))
sketch8.addConstraint(Sketcher.Constraint("Coincident", 12, 3, 9, 3))
sketch8.addConstraint(Sketcher.Constraint("Coincident", 13, 3, 9, 3))
sketch8.addConstraint(Sketcher.Constraint("Coincident", 19, 3, 16, 3))
sketch8.addConstraint(Sketcher.Constraint("Coincident", 20, 3, 16, 3))
sketch8.addConstraint(Sketcher.Constraint("Coincident", 26, 3, 23, 3))
sketch8.addConstraint(Sketcher.Constraint("Coincident", 27, 3, 23, 3))
sketch8.addConstraint(Sketcher.Constraint("Equal", 0, 9))
sketch8.addConstraint(Sketcher.Constraint("Equal", 3, 12))
sketch8.addConstraint(Sketcher.Constraint("Equal", 6, 13))
sketch8.addConstraint(Sketcher.Constraint("Equal", 9, 16))
sketch8.addConstraint(Sketcher.Constraint("Equal", 12, 19))
sketch8.addConstraint(Sketcher.Constraint("Equal", 13, 20))
sketch8.addConstraint(Sketcher.Constraint("Equal", 19, 23))
sketch8.addConstraint(Sketcher.Constraint("Equal", 16, 26))
sketch8.addConstraint(Sketcher.Constraint("Equal", 20, 27))
sketch8.addConstraint(Sketcher.Constraint("Symmetric", 0, 3, 16, 3, -1, 1))
sketch8.addConstraint(Sketcher.Constraint("Symmetric", 9, 3, 23, 3, -1, 1))
sketch8.addConstraint(Sketcher.Constraint("Symmetric", 0, 3, 9, 3, -2))
sketch8.addConstraint(Sketcher.Constraint("Radius", 3, 3.0))
sketch8.addConstraint(Sketcher.Constraint("Diameter", 6, 4.3))
sketch8.addConstraint(Sketcher.Constraint("Radius", 0, 5.15))
sketch8.addConstraint(Sketcher.Constraint("DistanceX", 0, 3, -1, 1, 40.0))
sketch8.addConstraint(Sketcher.Constraint("DistanceY", 9, 3, 16, 3, 45.0))
pad6 = body.newObject("PartDesign::Pad", "Pad005")
pad6.Profile = sketch8
pad6.Length = 5
pad6.Reversed = True

sketch9 = body.newObject("Sketcher::SketchObject", "Sketch008")
sketch9.AttachmentSupport = (doc.getObject("YZ_Plane"), [""])
sketch9.MapMode = "FlatFace"
sketch9.AttachmentOffset = App.Placement(App.Vector(0, 0, -45), App.Rotation())
sketch9.addGeometry(Part.LineSegment(App.Vector(6, -4, 0), App.Vector(3, -4, 0)), False)
sketch9.addGeometry(Part.LineSegment(App.Vector(3, -4, 0), App.Vector(3, 4, 0)), False)
sketch9.addGeometry(Part.LineSegment(App.Vector(3, 4, 0), App.Vector(6, 4, 0)), False)
sketch9.addGeometry(Part.LineSegment(App.Vector(6, 4, 0), App.Vector(6, -4, 0)), False)
sketch9.addConstraint(Sketcher.Constraint("Coincident", 0, 2, 1, 1))
sketch9.addConstraint(Sketcher.Constraint("Coincident", 1, 2, 2, 1))
sketch9.addConstraint(Sketcher.Constraint("Coincident", 2, 2, 3, 1))
sketch9.addConstraint(Sketcher.Constraint("Coincident", 3, 2, 0, 1))
sketch9.addConstraint(Sketcher.Constraint("Horizontal", 0))
sketch9.addConstraint(Sketcher.Constraint("Vertical", 1))
sketch9.addConstraint(Sketcher.Constraint("Horizontal", 2))
sketch9.addConstraint(Sketcher.Constraint("Vertical", 3))
sketch9.addConstraint(Sketcher.Constraint("DistanceX", 0, 2, 0, 1, 3.0))
sketch9.addConstraint(Sketcher.Constraint("DistanceY", 1, 1, 1, 2, 8.0))
sketch9.addConstraint(Sketcher.Constraint("DistanceX", -1, 1, 0, 2, 3.0))
sketch9.addConstraint(Sketcher.Constraint("DistanceY", 0, 2, -1, 1, 4.0))
pocket3 = body.newObject("PartDesign::Pocket", "Pocket002")
pocket3.Profile = sketch9
pocket3.Length = 10
pocket3.Reversed = True
doc.recompute()

fillet2 = body.newObject("PartDesign::Fillet", "Fillet001")
fillet2.Base = (pocket3, edges_at(pocket3, [
    (-44, 6, 4),
    (-44, 3, 4),
    (-44, 3, -4),
    (-44, 6, -4),
]))
fillet2.Radius = 1

doc.recompute()
